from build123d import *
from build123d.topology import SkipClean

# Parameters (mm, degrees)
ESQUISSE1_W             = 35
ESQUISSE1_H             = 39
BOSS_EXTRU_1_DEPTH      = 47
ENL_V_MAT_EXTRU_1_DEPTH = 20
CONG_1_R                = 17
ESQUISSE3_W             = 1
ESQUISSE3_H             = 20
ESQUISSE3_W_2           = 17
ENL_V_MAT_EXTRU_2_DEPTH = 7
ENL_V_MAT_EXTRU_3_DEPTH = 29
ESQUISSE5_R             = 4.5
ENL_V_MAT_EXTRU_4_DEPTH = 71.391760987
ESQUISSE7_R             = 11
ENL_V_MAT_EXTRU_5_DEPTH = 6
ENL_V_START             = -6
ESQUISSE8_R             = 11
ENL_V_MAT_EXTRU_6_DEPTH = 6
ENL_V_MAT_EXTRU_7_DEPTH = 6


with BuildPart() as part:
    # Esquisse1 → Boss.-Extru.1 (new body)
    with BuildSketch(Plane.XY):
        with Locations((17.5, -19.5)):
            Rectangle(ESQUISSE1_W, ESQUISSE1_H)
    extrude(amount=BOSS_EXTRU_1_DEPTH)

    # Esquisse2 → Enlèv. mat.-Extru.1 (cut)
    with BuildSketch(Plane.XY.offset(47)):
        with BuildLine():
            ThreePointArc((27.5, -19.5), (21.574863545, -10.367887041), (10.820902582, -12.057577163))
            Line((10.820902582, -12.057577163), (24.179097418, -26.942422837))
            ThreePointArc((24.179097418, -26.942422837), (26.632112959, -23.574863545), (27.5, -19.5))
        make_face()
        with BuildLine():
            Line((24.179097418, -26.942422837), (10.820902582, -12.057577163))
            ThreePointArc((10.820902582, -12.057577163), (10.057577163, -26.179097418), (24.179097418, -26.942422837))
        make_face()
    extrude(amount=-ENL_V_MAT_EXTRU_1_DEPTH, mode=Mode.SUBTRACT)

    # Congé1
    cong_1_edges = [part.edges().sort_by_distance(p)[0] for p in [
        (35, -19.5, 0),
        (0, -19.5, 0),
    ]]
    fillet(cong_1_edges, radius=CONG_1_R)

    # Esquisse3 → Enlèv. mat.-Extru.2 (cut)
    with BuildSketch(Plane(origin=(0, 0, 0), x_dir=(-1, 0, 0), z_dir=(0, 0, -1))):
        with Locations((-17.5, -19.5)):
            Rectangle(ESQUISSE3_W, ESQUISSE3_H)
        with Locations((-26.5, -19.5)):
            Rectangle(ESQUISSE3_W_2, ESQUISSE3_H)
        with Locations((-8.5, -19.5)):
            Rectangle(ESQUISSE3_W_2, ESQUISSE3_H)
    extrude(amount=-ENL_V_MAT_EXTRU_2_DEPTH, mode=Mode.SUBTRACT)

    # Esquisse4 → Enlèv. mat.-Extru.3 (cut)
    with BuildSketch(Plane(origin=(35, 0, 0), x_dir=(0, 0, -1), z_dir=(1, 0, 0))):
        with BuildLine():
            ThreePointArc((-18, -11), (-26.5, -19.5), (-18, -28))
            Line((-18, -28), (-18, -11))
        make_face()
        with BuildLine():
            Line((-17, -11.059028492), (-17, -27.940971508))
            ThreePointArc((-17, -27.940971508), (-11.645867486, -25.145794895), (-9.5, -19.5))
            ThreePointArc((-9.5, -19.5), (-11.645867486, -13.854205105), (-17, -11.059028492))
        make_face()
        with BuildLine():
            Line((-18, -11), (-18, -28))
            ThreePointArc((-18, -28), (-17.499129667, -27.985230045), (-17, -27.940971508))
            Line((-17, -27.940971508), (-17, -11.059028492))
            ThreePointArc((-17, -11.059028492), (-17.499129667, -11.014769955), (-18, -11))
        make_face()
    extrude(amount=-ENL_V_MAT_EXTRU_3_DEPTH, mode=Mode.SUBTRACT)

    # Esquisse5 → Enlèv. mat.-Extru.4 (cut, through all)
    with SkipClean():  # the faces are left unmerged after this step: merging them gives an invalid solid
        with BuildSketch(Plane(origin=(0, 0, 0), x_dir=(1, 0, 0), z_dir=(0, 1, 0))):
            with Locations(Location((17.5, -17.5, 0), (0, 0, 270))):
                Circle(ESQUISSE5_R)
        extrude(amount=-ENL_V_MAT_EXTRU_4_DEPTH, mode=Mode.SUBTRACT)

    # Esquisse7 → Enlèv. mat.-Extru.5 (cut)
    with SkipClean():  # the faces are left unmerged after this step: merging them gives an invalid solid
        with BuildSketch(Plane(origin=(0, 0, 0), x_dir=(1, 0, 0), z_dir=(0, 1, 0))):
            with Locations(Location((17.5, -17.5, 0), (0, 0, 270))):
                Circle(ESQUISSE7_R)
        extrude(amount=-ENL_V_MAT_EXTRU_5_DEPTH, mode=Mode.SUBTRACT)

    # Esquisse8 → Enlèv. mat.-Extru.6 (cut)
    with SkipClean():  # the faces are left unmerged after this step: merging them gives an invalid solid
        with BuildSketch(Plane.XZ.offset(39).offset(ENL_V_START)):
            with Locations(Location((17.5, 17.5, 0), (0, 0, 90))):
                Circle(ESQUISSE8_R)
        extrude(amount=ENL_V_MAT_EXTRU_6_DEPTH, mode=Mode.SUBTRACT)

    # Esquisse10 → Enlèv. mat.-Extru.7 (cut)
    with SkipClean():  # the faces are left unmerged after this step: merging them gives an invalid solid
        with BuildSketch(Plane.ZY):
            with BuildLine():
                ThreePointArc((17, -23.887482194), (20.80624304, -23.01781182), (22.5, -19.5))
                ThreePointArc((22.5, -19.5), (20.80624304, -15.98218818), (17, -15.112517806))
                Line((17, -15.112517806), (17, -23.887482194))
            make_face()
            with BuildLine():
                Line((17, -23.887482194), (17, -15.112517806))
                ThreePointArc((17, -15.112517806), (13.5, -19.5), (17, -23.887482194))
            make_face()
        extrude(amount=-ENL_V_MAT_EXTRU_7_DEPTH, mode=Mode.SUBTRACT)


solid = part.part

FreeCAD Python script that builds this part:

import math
import FreeCAD as App
import Part
import Sketcher

V = App.Vector


def edges_at(feature, points):
    """Names of the edges that pass closest to the given points."""
    edges = feature.Shape.Edges
    near = lambda p: min(range(len(edges)), key=lambda i: edges[i].distToShape(Part.Vertex(*p))[0])
    return sorted({f"Edge{near(p) + 1}" for p in points})


def add_polygon(sketch, points):
    """Adds a closed chain of lines whose ends are joined by coincident constraints."""
    first, n = sketch.GeometryCount, len(points)
    for a, b in zip(points, points[1:] + points[:1]):
        sketch.addGeometry(Part.LineSegment(App.Vector(*a, 0), App.Vector(*b, 0)), False)
    for i in range(n):
        sketch.addConstraint(Sketcher.Constraint("Coincident", first + i, 2, first + (i + 1) % n, 1))

doc = App.newDocument("Part")
params = doc.addObject("Spreadsheet::Sheet", "Params")
for row, (alias, value) in enumerate([
    ("sketch1_width", "35 mm"),
    ("sketch1_height", "39 mm"),
    ("pad1_length", "47 mm"),
    ("sketch2_radius", "10 mm"),
    ("pocket1_length", "20 mm"),
    ("fillet_radius", "17 mm"),
    ("sketch3_width", "35 mm"),
    ("sketch3_height", "20 mm"),
    ("pocket2_length", "7 mm"),
    ("sketch4_radius", "8.5 mm"),
    ("pocket3_length", "29 mm"),
    ("sketch5_diameter", "9 mm"),
    ("sketch6_diameter", "22 mm"),
    ("pocket5_length", "6 mm"),
    ("sketch7_diameter", "22 mm"),
    ("pocket6_length", "6 mm"),
    ("sketch8_radius", "4.5 mm"),
    ("pocket7_length", "6 mm"),
], start=1):
    params.set(f"A{row}", alias)
    params.set(f"B{row}", "=" + value)
    params.setAlias(f"B{row}", alias)

body = doc.addObject("PartDesign::Body", "Body")

sketch1 = doc.addObject("Sketcher::SketchObject", "Sketch")
body.addObject(sketch1)
sketch1.AttachmentSupport = (doc.XY_Plane, [""])
sketch1.MapMode = "FlatFace"
add_polygon(sketch1, [(0, 0), (0, -39), (35, -39), (35, 0)])
sketch1.addConstraint(Sketcher.Constraint("Vertical", 0))
sketch1.addConstraint(Sketcher.Constraint("Horizontal", 1))
sketch1.addConstraint(Sketcher.Constraint("Vertical", 2))
sketch1.addConstraint(Sketcher.Constraint("Horizontal", 3))
sketch1.addConstraint(Sketcher.Constraint("Coincident", 3, 2, -1, 1))
sketch1.addConstraint(Sketcher.Constraint("DistanceX", 1, 1, 1, 2, 35.0))
sketch1.addConstraint(Sketcher.Constraint("DistanceY", 0, 2, 0, 1, 39.0))
sketch1.setExpression("Constraints[9]", "Params.sketch1_width")
sketch1.setExpression("Constraints[10]", "Params.sketch1_height")
pad1 = doc.addObject("PartDesign::Pad", "Pad")
body.addObject(pad1)
pad1.Profile = sketch1
pad1.setExpression("Length", "Params.pad1_length")

sketch2 = doc.addObject("Sketcher::SketchObject", "Sketch001")
body.addObject(sketch2)
sketch2.AttachmentSupport = (doc.XY_Plane, [""])
sketch2.MapMode = "FlatFace"
sketch2.AttachmentOffset = App.Placement(V(0, 0, 47), App.Rotation())
sketch2.addGeometry(Part.ArcOfCircle(Part.Circle(V(18, -20, 0), V(0, 0, 1), 10), math.radians(0), math.radians(132)), False)
sketch2.addGeometry(Part.ArcOfCircle(Part.Circle(V(18, -20, 0), V(0, 0, 1), 10), math.radians(132), math.radians(312)), False)
sketch2.addGeometry(Part.ArcOfCircle(Part.Circle(V(18, -20, 0), V(0, 0, 1), 10), math.radians(-48), math.radians(0)), False)
sketch2.addConstraint(Sketcher.Constraint("Tangent", 0, 2, 1, 1))
sketch2.addConstraint(Sketcher.Constraint("Tangent", 1, 2, 2, 1))
sketch2.addConstraint(Sketcher.Constraint("Tangent", 2, 2, 0, 1))
sketch2.addConstraint(Sketcher.Constraint("Horizontal", 1, 3, 2, 2))
sketch2.addConstraint(Sketcher.Constraint("Radius", 0, 10.0))
sketch2.addConstraint(Sketcher.Constraint("DistanceX", -1, 1, 0, 3, 17.5))
sketch2.addConstraint(Sketcher.Constraint("DistanceY", 0, 3, -1, 1, 19.5))
sketch2.addConstraint(Sketcher.Constraint("DistanceX", -1, 1, 0, 2, 10.820903))
sketch2.addConstraint(Sketcher.Constraint("DistanceX", -1, 1, 1, 2, 24.179097))
sketch2.setExpression("Constraints[4]", "Params.sketch2_radius")
pocket1 = doc.addObject("PartDesign::Pocket", "Pocket")
body.addObject(pocket1)
pocket1.Profile = sketch2
pocket1.setExpression("Length", "Params.pocket1_length")
doc.recompute()

fillet = doc.addObject("PartDesign::Fillet", "Fillet")
body.addObject(fillet)
fillet.Base = (pocket1, edges_at(pocket1, [(35, -19.5, 0), (0, -19.5, 0)]))
fillet.setExpression("Radius", "Params.fillet_radius")

sketch3 = doc.addObject("Sketcher::SketchObject", "Sketch002")
body.addObject(sketch3)
sketch3.AttachmentSupport = (doc.XY_Plane, [""])
sketch3.MapMode = "FlatFace"
add_polygon(sketch3, [(35, -10), (35, -30), (0, -30), (0, -10)])
sketch3.addConstraint(Sketcher.Constraint("Vertical", 0))
sketch3.addConstraint(Sketcher.Constraint("Horizontal", 1))
sketch3.addConstraint(Sketcher.Constraint("Vertical", 2))
sketch3.addConstraint(Sketcher.Constraint("Horizontal", 3))
sketch3.addConstraint(Sketcher.Constraint("PointOnObject", 1, 2, -2))
sketch3.addConstraint(Sketcher.Constraint("DistanceX", 1, 2, 1, 1, 35.0))
sketch3.addConstraint(Sketcher.Constraint("DistanceY", 0, 2, 0, 1, 20.0))
sketch3.addConstraint(Sketcher.Constraint("DistanceY", 0, 2, -1, 1, 29.5))
sketch3.setExpression("Constraints[9]", "Params.sketch3_width")
sketch3.setExpression("Constraints[10]", "Params.sketch3_height")
pocket2 = doc.addObject("PartDesign::Pocket", "Pocket001")
body.addObject(pocket2)
pocket2.Profile = sketch3
pocket2.setExpression("Length", "Params.pocket2_length")
pocket2.Reversed = True

sketch4 = doc.addObject("Sketcher::SketchObject", "Sketch003")
body.addObject(sketch4)
sketch4.AttachmentSupport = (doc.YZ_Plane, [""])
sketch4.MapMode = "FlatFace"
sketch4.AttachmentOffset = App.Placement(V(0, 0, 35), App.Rotation())
sketch4.addGeometry(Part.ArcOfCircle(Part.Circle(V(-19.5, 18, 0), V(0, 0, 1), 8.5), math.radians(0), math.radians(180)), False)
sketch4.addGeometry(Part.ArcOfCircle(Part.Circle(V(-19.5, 18, 0), V(0, 0, 1), 8.5), math.radians(180), math.radians(186.76)), False)
sketch4.addGeometry(Part.ArcOfCircle(Part.Circle(V(-19.5, 18, 0), V(0, 0, 1), 8.5), math.radians(-173), math.radians(-90)), False)
sketch4.addGeometry(Part.ArcOfCircle(Part.Circle(V(-19.5, 18, 0), V(0, 0, 1), 8.5), math.radians(-90), math.radians(-7)), False)
sketch4.addGeometry(Part.ArcOfCircle(Part.Circle(V(-19.5, 18, 0), V(0, 0, 1), 8.5), math.radians(-6.76), math.radians(0)), False)
sketch4.addConstraint(Sketcher.Constraint("Tangent", 0, 2, 1, 1))
sketch4.addConstraint(Sketcher.Constraint("Tangent", 1, 2, 2, 1))
sketch4.addConstraint(Sketcher.Constraint("Tangent", 2, 2, 3, 1))
sketch4.addConstraint(Sketcher.Constraint("Tangent", 3, 2, 4, 1))
sketch4.addConstraint(Sketcher.Constraint("Tangent", 4, 2, 0, 1))
sketch4.addConstraint(Sketcher.Constraint("Coincident", 2, 3, 0, 3))
sketch4.addConstraint(Sketcher.Constraint("Horizontal", 4, 3, 0, 2))
sketch4.addConstraint(Sketcher.Constraint("Horizontal", 1, 2, 3, 2))
sketch4.addConstraint(Sketcher.Constraint("Horizontal", 0, 2, 4, 2))
sketch4.addConstraint(Sketcher.Constraint("Vertical", 4, 3, 2, 2))
sketch4.addConstraint(Sketcher.Constraint("Radius", 0, 8.5))
sketch4.addConstraint(Sketcher.Constraint("DistanceY", -1, 1, 0, 3, 18.0))
sketch4.addConstraint(Sketcher.Constraint("DistanceX", 0, 2, -1, 1, 28.0))
sketch4.addConstraint(Sketcher.Constraint("DistanceY", -1, 1, 1, 2, 17.0))
sketch4.setExpression("Constraints[10]", "Params.sketch4_radius")
pocket3 = doc.addObject("PartDesign::Pocket", "Pocket002")
body.addObject(pocket3)
pocket3.Profile = sketch4
pocket3.setExpression("Length", "Params.pocket3_length")

sketch5 = doc.addObject("Sketcher::SketchObject", "Sketch004")
body.addObject(sketch5)
sketch5.AttachmentSupport = (doc.XZ_Plane, [""])
sketch5.MapMode = "FlatFace"
sketch5.addGeometry(Part.Circle(V(17.5, 17.5, 0), V(0, 0, 1), 4.5), False)
sketch5.addConstraint(Sketcher.Constraint("Diameter", 0, 9.0))
sketch5.addConstraint(Sketcher.Constraint("DistanceX", -1, 1, 0, 3, 17.5))
sketch5.addConstraint(Sketcher.Constraint("DistanceY", -1, 1, 0, 3, 17.5))
sketch5.setExpression("Constraints[0]", "Params.sketch5_diameter")
pocket4 = doc.addObject("PartDesign::Pocket", "Pocket003")
body.addObject(pocket4)
pocket4.Profile = sketch5
pocket4.Type = "ThroughAll"
pocket4.Reversed = True

sketch6 = doc.addObject("Sketcher::SketchObject", "Sketch005")
body.addObject(sketch6)
sketch6.AttachmentSupport = (doc.XZ_Plane, [""])
sketch6.MapMode = "FlatFace"
sketch6.addGeometry(Part.Circle(V(18, 18, 0), V(0, 0, 1), 11), False)
sketch6.addConstraint(Sketcher.Constraint("Diameter", 0, 22.0))
sketch6.addConstraint(Sketcher.Constraint("DistanceX", -1, 1, 0, 3, 17.5))
sketch6.addConstraint(Sketcher.Constraint("DistanceY", -1, 1, 0, 3, 17.5))
sketch6.setExpression("Constraints[0]", "Params.sketch6_diameter")
pocket5 = doc.addObject("PartDesign::Pocket", "Pocket004")
body.addObject(pocket5)
pocket5.Profile = sketch6
pocket5.setExpression("Length", "Params.pocket5_length")
pocket5.Reversed = True

sketch7 = doc.addObject("Sketcher::SketchObject", "Sketch006")
body.addObject(sketch7)
sketch7.AttachmentSupport = (doc.XZ_Plane, [""])
sketch7.MapMode = "FlatFace"
sketch7.AttachmentOffset = App.Placement(V(0, 0, 33), App.Rotation())
sketch7.addGeometry(Part.Circle(V(18, 18, 0), V(0, 0, 1), 11), False)
sketch7.addConstraint(Sketcher.Constraint("Diameter", 0, 22.0))
sketch7.addConstraint(Sketcher.Constraint("DistanceX", -1, 1, 0, 3, 17.5))
sketch7.addConstraint(Sketcher.Constraint("DistanceY", -1, 1, 0, 3, 17.5))
sketch7.setExpression("Constraints[0]", "Params.sketch7_diameter")
pocket6 = doc.addObject("PartDesign::Pocket", "Pocket005")
body.addObject(pocket6)
pocket6.Profile = sketch7
pocket6.setExpression("Length", "Params.pocket6_length")
pocket6.Reversed = True

sketch8 = doc.addObject("Sketcher::SketchObject", "Sketch007")
body.addObject(sketch8)
sketch8.AttachmentSupport = (doc.YZ_Plane, [""])
sketch8.MapMode = "FlatFace"
sketch8.addGeometry(Part.ArcOfCircle(Part.Circle(V(-19.5, 18, 0), V(0, 0, 1), 4.5), math.radians(90), math.radians(193)), False)
sketch8.addGeometry(Part.ArcOfCircle(Part.Circle(V(-19.5, 18, 0), V(0, 0, 1), 4.5), math.radians(-13), math.radians(90)), False)
sketch8.addGeometry(Part.LineSegment(V(-15.1, 17, 0), V(-23.9, 17, 0)), False)
sketch8.addGeometry(Part.LineSegment(V(-23.9, 17, 0), V(-15.1, 17, 0)), False)
sketch8.addGeometry(Part.ArcOfCircle(Part.Circle(V(-19.5, 18, 0), V(0, 0, 1), 4.5), math.radians(-167), math.radians(-13)), False)
sketch8.addConstraint(Sketcher.Constraint("Tangent", 0, 1, 1, 2))
sketch8.addConstraint(Sketcher.Constraint("Coincident", 1, 1, 2, 1))
sketch8.addConstraint(Sketcher.Constraint("Coincident", 2, 2, 0, 2))
sketch8.addConstraint(Sketcher.Constraint("Coincident", 3, 1, 4, 1))
sketch8.addConstraint(Sketcher.Constraint("Coincident", 4, 2, 3, 2))
sketch8.addConstraint(Sketcher.Constraint("Horizontal", 2))
sketch8.addConstraint(Sketcher.Constraint("Horizontal", 3))
sketch8.addConstraint(Sketcher.Constraint("Coincident", 4, 3, 0, 3))
sketch8.addConstraint(Sketcher.Constraint("Coincident", 3, 1, 2, 2))
sketch8.addConstraint(Sketcher.Constraint("Equal", 0, 1))
sketch8.addConstraint(Sketcher.Constraint("Vertical", 4, 3, 0, 1))
sketch8.addConstraint(Sketcher.Constraint("Radius", 0, 4.5))
sketch8.addConstraint(Sketcher.Constraint("DistanceY", -1, 1, 0, 3, 18.0))
sketch8.addConstraint(Sketcher.Constraint("DistanceY", -1, 1, 1, 1, 17.0))
sketch8.addConstraint(Sketcher.Constraint("DistanceX", 0, 3, -1, 1, 19.5))
sketch8.setExpression("Constraints[11]", "Params.sketch8_radius")
pocket7 = doc.addObject("PartDesign::Pocket", "Pocket006")
body.addObject(pocket7)
pocket7.Profile = sketch8
pocket7.setExpression("Length", "Params.pocket7_length")
pocket7.Reversed = True

doc.recompute()
